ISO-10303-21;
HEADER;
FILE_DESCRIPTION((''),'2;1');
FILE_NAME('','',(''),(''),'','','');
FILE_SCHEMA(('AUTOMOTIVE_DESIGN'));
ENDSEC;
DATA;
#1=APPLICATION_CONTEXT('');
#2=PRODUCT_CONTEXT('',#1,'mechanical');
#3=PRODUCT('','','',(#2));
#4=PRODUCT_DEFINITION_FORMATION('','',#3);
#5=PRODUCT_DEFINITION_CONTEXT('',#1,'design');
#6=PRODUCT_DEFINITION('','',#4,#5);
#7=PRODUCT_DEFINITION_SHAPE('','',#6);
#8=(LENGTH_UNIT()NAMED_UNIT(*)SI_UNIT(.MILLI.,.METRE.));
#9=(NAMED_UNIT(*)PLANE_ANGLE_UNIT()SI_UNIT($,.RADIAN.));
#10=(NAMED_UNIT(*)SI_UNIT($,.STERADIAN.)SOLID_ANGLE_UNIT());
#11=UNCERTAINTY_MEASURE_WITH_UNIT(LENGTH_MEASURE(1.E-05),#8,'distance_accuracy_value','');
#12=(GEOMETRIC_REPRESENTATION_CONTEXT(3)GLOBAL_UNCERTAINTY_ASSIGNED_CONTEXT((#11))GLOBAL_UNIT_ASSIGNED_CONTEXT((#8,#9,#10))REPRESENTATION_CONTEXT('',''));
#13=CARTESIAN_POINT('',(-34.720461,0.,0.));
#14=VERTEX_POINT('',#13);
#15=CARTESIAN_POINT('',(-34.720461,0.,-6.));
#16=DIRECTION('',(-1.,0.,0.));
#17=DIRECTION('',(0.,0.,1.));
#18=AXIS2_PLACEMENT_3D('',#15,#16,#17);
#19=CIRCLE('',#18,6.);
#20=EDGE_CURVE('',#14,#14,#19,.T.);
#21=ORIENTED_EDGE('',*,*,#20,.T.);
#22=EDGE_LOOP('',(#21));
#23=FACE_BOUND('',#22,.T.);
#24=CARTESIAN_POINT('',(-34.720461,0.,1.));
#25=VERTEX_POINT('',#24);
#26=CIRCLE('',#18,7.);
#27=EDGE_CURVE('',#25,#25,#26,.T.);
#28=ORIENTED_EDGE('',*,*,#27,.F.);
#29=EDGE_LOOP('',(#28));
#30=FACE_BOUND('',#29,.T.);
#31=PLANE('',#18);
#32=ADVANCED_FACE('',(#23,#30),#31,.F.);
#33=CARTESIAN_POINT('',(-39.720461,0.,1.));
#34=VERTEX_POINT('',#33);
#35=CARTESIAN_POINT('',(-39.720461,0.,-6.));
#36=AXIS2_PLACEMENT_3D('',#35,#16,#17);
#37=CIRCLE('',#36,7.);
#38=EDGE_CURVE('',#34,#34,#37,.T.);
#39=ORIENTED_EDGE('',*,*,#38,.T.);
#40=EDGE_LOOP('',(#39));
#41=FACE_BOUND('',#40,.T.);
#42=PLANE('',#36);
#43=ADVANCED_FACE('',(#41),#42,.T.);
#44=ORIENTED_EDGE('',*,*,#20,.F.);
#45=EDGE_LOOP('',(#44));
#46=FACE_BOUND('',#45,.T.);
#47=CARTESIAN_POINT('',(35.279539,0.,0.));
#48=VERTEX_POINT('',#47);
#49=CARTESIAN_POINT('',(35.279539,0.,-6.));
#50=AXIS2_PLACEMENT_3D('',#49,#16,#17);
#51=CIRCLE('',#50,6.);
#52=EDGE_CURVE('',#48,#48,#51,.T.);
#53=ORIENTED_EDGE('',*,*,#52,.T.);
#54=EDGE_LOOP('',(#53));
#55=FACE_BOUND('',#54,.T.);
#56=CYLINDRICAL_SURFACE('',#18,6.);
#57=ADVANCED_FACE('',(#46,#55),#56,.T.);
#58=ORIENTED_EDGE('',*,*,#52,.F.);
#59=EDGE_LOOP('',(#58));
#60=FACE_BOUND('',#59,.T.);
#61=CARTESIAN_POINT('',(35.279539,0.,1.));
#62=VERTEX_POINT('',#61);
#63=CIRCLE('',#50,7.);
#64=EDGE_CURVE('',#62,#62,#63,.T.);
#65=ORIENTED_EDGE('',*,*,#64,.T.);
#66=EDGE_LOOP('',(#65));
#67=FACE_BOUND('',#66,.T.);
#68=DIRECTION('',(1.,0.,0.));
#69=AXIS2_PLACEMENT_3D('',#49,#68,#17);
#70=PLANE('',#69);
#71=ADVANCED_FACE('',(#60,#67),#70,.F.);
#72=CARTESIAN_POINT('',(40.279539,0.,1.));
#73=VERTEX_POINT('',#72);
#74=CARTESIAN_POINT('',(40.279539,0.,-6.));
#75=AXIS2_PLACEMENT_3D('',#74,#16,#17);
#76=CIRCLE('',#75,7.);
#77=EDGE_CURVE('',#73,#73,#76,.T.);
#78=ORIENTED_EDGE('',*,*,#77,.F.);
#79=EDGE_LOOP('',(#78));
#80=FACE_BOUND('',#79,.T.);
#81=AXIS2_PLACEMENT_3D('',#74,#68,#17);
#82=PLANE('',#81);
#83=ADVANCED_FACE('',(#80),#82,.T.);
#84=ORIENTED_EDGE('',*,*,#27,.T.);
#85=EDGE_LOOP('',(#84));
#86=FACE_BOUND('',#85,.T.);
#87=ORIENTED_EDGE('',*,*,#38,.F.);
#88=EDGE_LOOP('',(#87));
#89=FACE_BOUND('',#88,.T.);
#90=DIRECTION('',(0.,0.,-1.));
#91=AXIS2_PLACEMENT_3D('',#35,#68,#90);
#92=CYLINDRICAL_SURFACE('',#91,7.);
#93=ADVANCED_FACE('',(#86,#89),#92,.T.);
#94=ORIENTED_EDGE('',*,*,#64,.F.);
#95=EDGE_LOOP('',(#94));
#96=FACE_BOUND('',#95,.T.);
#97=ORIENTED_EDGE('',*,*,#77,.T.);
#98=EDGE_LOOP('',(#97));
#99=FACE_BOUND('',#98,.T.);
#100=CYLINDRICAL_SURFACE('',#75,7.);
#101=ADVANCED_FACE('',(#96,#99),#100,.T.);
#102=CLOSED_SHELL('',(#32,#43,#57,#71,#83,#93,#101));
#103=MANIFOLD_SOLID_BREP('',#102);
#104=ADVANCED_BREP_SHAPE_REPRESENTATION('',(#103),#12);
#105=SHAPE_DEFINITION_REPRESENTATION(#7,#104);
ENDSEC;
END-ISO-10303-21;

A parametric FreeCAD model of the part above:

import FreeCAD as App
import Part
import Sketcher
from FreeCAD import Vector
Q = App.Units.Quantity

doc = App.newDocument("Part")
body = doc.addObject("PartDesign::Body", "Body")

# Sketch on XZ plane
sketch1 = body.newObject("Sketcher::SketchObject", "Sketch")
sketch1.AttachmentSupport = (doc.getObject("XZ_Plane"), [""])
sketch1.MapMode = "FlatFace"
sketch1.addGeometry([
    Part.LineSegment(Vector(-35, -12, 0), Vector(-35, -6, 0)),
    Part.LineSegment(Vector(-35, -6, 0), Vector(35, -6, 0)),
    Part.LineSegment(Vector(35, -6, 0), Vector(35, -12, 0)),
    Part.LineSegment(Vector(35, -12, 0), Vector(-35, -12, 0)),
], False)
sketch1.addGeometry(Part.LineSegment(Vector(-35, -6, 0), Vector(35, -6, 0)), True)  # axis
sketch1.addConstraint([
    Sketcher.Constraint("Coincident", 0, 2, 1, 1),
    Sketcher.Constraint("Coincident", 1, 2, 2, 1),
    Sketcher.Constraint("Coincident", 2, 2, 3, 1),
    Sketcher.Constraint("Coincident", 3, 2, 0, 1),
    Sketcher.Constraint("Vertical", 0),
    Sketcher.Constraint("Horizontal", 1),
    Sketcher.Constraint("Vertical", 2),
    Sketcher.Constraint("Horizontal", 3),
    Sketcher.Constraint("Horizontal", 4),
    Sketcher.Constraint("Coincident", 4, 1, 0, 2),
    Sketcher.Constraint("Vertical", 2, 2, 4, 2),
    Sketcher.Constraint("DistanceX", 1, 1, 1, 2, Q("70 mm")),
    Sketcher.Constraint("DistanceY", 0, 1, 0, 2, Q("6 mm")),
    Sketcher.Constraint("DistanceY", 0, 2, -1, 1, Q("6 mm")),
    Sketcher.Constraint("DistanceX", 0, 2, -1, 1, Q("34.720461 mm")),
])
revolution = body.newObject("PartDesign::Revolution", "Revolution")
revolution.Profile = sketch1
revolution.ReferenceAxis = (sketch1, ["Axis0"])
revolution.Angle = 360

# Sketch on YZ plane
sketch2 = body.newObject("Sketcher::SketchObject", "Sketch001")
sketch2.AttachmentSupport = (doc.getObject("YZ_Plane"), [""])
sketch2.MapMode = "FlatFace"
sketch2.AttachmentOffset = App.Placement(Vector(0, 0, -34.720461), App.Rotation())
sketch2.addGeometry(Part.Circle(Vector(0, -6, 0), Vector(0, 0, 1), 7), False)
sketch2.addConstraint([
    Sketcher.Constraint("PointOnObject", 0, 3, -2),
    Sketcher.Constraint("Diameter", 0, Q("14 mm")),
    Sketcher.Constraint("DistanceY", 0, 3, -1, 1, Q("6 mm")),
])
pad1 = body.newObject("PartDesign::Pad", "Pad")
pad1.Profile = sketch2
pad1.Length = 5
pad1.Reversed = True
doc.recompute()

datumplane = body.newObject("PartDesign::Plane", "DatumPlane")
datumplane.AttachmentSupport = (doc.getObject("YZ_Plane"), [""])
datumplane.MapMode = "FlatFace"
datumplane.AttachmentOffset = App.Placement(Vector(0, 0, 0.279539), App.Rotation())
mirrored = body.newObject("PartDesign::Mirrored", "Mirrored")
mirrored.Originals = [pad1]
mirrored.MirrorPlane = (datumplane, [""])
body.Tip = mirrored

doc.recompute()
